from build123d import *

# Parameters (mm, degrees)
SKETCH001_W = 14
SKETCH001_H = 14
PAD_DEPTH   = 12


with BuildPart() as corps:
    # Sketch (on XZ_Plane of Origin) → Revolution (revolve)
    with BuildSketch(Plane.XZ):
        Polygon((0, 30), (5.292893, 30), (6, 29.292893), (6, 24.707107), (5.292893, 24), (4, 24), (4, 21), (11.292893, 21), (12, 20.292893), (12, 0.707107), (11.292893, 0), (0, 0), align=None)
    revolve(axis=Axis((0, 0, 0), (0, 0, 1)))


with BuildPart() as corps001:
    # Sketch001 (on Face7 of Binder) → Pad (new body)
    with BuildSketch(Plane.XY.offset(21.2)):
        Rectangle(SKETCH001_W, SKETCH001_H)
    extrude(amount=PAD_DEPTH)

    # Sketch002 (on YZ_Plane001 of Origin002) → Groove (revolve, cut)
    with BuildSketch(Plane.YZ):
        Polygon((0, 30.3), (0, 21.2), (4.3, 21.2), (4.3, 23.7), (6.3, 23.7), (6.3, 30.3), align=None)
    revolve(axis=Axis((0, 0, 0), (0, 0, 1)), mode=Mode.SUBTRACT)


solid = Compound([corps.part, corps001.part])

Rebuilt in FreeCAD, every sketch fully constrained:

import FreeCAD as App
import Part
import Sketcher


def add_polygon(sketch, points):
    """Adds a closed chain of lines whose ends are joined by coincident constraints."""
    first, n = sketch.GeometryCount, len(points)
    for a, b in zip(points, points[1:] + points[:1]):
        sketch.addGeometry(Part.LineSegment(App.Vector(*a, 0), App.Vector(*b, 0)), False)
    for i in range(n):
        sketch.addConstraint(Sketcher.Constraint("Coincident", first + i, 2, first + (i + 1) % n, 1))

doc = App.newDocument("Part")
body = doc.addObject("PartDesign::Body", "Body")

# Sketch on XZ plane
sketch1 = body.newObject("Sketcher::SketchObject", "Sketch")
sketch1.AttachmentSupport = (doc.getObject("XZ_Plane"), [""])
sketch1.MapMode = "FlatFace"
add_polygon(sketch1, [(5.292893, 30), (0, 30), (0, 0), (11.292893, 0), (12, 0.707107), (12, 20.292893), (11.292893, 21), (4, 21), (4, 24), (5.292893, 24), (6, 24.707107), (6, 29.292893)])  # lines 0-11
sketch1.addConstraint([
    Sketcher.Constraint("Horizontal", 0),
    Sketcher.Constraint("Vertical", 1),
    Sketcher.Constraint("Horizontal", 2),
    Sketcher.Constraint("Vertical", 4),
    Sketcher.Constraint("Horizontal", 6),
    Sketcher.Constraint("Vertical", 7),
    Sketcher.Constraint("Horizontal", 8),
    Sketcher.Constraint("Vertical", 10),
    Sketcher.Constraint("Coincident", 1, 2, -1, 1),
    Sketcher.Constraint("Perpendicular", 3, 5),
    Sketcher.Constraint("Perpendicular", 5, 9),
    Sketcher.Constraint("Perpendicular", 9, 11),
    Sketcher.Constraint("Vertical", 2, 2, 5, 2),
    Sketcher.Constraint("Vertical", 8, 2, 11, 2),
    Sketcher.Constraint("Equal", 3, 5),
    Sketcher.Constraint("Equal", 5, 9),
    Sketcher.Constraint("DistanceY", 1, 2, 1, 1, 30.0),
    Sketcher.Constraint("DistanceY", 7, 1, 7, 2, 3.0),
    Sketcher.Constraint("Distance", 3, 1.0),
    Sketcher.Constraint("DistanceX", -1, 1, 3, 2, 12.0),
    Sketcher.Constraint("DistanceY", -1, 1, 5, 2, 21.0),
    Sketcher.Constraint("DistanceX", -1, 1, 6, 2, 4.0),
    Sketcher.Constraint("DistanceX", -1, 1, 9, 2, 6.0),
])
revolution = body.newObject("PartDesign::Revolution", "Revolution")
revolution.Profile = sketch1
revolution.ReferenceAxis = (sketch1, ["V_Axis"])
revolution.Angle = 360
body2 = doc.addObject("PartDesign::Body", "Body001")

# Sketch on XY plane
sketch2 = body2.newObject("Sketcher::SketchObject", "Sketch001")
sketch2.AttachmentSupport = (doc.getObject("XY_Plane001"), [""])
sketch2.MapMode = "FlatFace"
sketch2.AttachmentOffset = App.Placement(App.Vector(0, 0, 21.2), App.Rotation())
add_polygon(sketch2, [(-7, 7), (-7, -7), (7, -7), (7, 7)])  # lines 0-3
sketch2.addConstraint([
    Sketcher.Constraint("Vertical", 0),
    Sketcher.Constraint("Horizontal", 1),
    Sketcher.Constraint("Vertical", 2),
    Sketcher.Constraint("Horizontal", 3),
    Sketcher.Constraint("Symmetric", 0, 2, 2, 2, -1, 1),
    Sketcher.Constraint("Equal", 3, 0),
    Sketcher.Constraint("DistanceX", 1, 1, 1, 2, 14.0),
])
pad1 = body2.newObject("PartDesign::Pad", "Pad")
pad1.Profile = sketch2
pad1.Length = 12

# Sketch on YZ plane
sketch3 = body2.newObject("Sketcher::SketchObject", "Sketch002")
sketch3.AttachmentSupport = (doc.getObject("YZ_Plane001"), [""])
sketch3.MapMode = "FlatFace"
add_polygon(sketch3, [(0, 30.3), (0, 21.2), (4.3, 21.2), (4.3, 23.7), (6.3, 23.7), (6.3, 30.3)])  # lines 0-5
sketch3.addConstraint([
    Sketcher.Constraint("Vertical", 0),
    Sketcher.Constraint("Horizontal", 1),
    Sketcher.Constraint("Vertical", 2),
    Sketcher.Constraint("Horizontal", 3),
    Sketcher.Constraint("Vertical", 4),
    Sketcher.Constraint("Horizontal", 5),
    Sketcher.Constraint("PointOnObject", 0, 2, -2),
    Sketcher.Constraint("DistanceX", 3, 1, 3, 2, 2.0),
    Sketcher.Constraint("DistanceX", 1, 1, 1, 2, 4.3),
    Sketcher.Constraint("DistanceY", 0, 2, 0, 1, 9.1),
    Sketcher.Constraint("DistanceY", 2, 1, 2, 2, 2.5),
    Sketcher.Constraint("DistanceY", -1, 1, 0, 2, 21.2),
])
groove = body2.newObject("PartDesign::Groove", "Groove")
groove.Profile = sketch3
groove.ReferenceAxis = (sketch3, ["V_Axis"])
groove.Angle = 360

doc.recompute()
